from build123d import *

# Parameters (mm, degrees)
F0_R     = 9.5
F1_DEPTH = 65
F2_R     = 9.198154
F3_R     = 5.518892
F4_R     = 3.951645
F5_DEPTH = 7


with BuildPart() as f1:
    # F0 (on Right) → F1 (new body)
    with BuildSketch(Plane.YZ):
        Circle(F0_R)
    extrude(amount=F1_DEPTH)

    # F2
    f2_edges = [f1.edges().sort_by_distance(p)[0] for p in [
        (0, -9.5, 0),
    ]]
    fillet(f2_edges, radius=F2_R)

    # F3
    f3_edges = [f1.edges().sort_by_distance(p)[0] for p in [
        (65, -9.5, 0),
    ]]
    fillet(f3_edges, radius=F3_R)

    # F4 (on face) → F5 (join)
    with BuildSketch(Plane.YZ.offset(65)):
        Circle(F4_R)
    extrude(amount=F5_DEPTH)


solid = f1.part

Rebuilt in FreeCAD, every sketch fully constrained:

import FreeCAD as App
import Part
import Sketcher
from FreeCAD import Vector
Q = App.Units.Quantity


def edges_at(feature, points):
    """Names of the edges that pass closest to the given points."""
    edges = feature.Shape.Edges
    near = lambda p: min(range(len(edges)), key=lambda i: edges[i].distToShape(Part.Vertex(*p))[0])
    return sorted({f"Edge{near(p) + 1}" for p in points})

doc = App.newDocument("Part")
body = doc.addObject("PartDesign::Body", "Body")

sketch1 = body.newObject("Sketcher::SketchObject", "Sketch")
sketch1.AttachmentSupport = (doc.getObject("YZ_Plane"), [""])
sketch1.MapMode = "FlatFace"
sketch1.addGeometry(Part.Circle(Vector(0, 0, 0), Vector(0, 0, 1), 10), False)
sketch1.addConstraint([
    Sketcher.Constraint("Coincident", 0, 3, -1, 1),
    Sketcher.Constraint("Diameter", 0, Q("19 mm")),
])
pad1 = body.newObject("PartDesign::Pad", "Pad")
pad1.Profile = sketch1
pad1.Length = 65
doc.recompute()

fillet = body.newObject("PartDesign::Fillet", "Fillet")
fillet.Base = (pad1, edges_at(pad1, [(0, -9.5, 0)]))
fillet.Radius = 9.198154
doc.recompute()

fillet2 = body.newObject("PartDesign::Fillet", "Fillet001")
fillet2.Base = (fillet, edges_at(fillet, [(65, -9.5, 0)]))
fillet2.Radius = 5.518892

sketch2 = body.newObject("Sketcher::SketchObject", "Sketch001")
sketch2.AttachmentSupport = (doc.getObject("YZ_Plane"), [""])
sketch2.MapMode = "FlatFace"
sketch2.AttachmentOffset = App.Placement(Vector(0, 0, 65), App.Rotation())
sketch2.addGeometry(Part.Circle(Vector(0, 0, 0), Vector(0, 0, 1), 4), False)
sketch2.addConstraint([
    Sketcher.Constraint("Coincident", 0, 3, -1, 1),
    Sketcher.Constraint("Diameter", 0, Q("7.90329 mm")),
])
pad2 = body.newObject("PartDesign::Pad", "Pad001")
pad2.Profile = sketch2
pad2.Length = 7

doc.recompute()
